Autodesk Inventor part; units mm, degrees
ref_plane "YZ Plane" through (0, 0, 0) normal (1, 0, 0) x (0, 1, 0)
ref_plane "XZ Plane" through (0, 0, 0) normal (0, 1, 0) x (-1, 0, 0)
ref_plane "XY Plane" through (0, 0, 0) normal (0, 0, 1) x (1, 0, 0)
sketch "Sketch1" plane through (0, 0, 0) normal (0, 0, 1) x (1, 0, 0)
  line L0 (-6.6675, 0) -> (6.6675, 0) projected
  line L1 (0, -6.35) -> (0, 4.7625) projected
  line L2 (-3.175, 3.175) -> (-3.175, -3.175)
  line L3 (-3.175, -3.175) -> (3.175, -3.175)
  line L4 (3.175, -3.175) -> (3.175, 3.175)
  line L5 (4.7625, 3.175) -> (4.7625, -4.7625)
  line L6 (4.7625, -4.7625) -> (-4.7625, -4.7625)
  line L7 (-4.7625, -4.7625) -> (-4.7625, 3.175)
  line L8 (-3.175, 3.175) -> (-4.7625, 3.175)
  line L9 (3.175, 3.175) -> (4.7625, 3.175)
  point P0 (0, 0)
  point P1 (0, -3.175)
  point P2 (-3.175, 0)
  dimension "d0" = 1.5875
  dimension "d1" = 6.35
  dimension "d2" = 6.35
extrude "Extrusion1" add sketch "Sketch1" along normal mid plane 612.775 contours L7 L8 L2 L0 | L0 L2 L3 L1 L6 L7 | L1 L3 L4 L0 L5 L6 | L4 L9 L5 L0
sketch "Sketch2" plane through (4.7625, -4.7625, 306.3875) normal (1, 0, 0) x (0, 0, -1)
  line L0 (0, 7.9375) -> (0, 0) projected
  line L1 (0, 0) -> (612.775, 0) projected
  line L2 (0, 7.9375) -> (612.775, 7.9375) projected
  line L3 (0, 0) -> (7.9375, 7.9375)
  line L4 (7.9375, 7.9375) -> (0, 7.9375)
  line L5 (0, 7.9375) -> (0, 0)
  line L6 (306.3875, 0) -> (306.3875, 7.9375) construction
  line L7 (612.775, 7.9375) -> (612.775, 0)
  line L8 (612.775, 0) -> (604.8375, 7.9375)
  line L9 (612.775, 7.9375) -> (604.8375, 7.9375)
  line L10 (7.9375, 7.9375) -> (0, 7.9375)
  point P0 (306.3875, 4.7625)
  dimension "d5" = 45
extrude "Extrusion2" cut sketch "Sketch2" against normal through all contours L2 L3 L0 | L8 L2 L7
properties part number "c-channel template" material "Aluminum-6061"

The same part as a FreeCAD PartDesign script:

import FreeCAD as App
import Part
import Sketcher
from FreeCAD import Vector
Q = App.Units.Quantity

doc = App.newDocument("Part")
body = doc.addObject("PartDesign::Body", "Body")

# Sketch on XY plane
sketch1 = body.newObject("Sketcher::SketchObject", "Sketch")
sketch1.AttachmentSupport = (doc.getObject("XY_Plane"), [""])
sketch1.MapMode = "FlatFace"
sketch1.addGeometry([
    Part.LineSegment(Vector(-4.7625, 3.175, 0), Vector(-4.7625, -4.7625, 0)),  # 0
    Part.LineSegment(Vector(-4.7625, -4.7625, 0), Vector(4.7625, -4.7625, 0)),  # 1
    Part.LineSegment(Vector(4.7625, -4.7625, 0), Vector(4.7625, 3.175, 0)),  # 2
    Part.LineSegment(Vector(4.7625, 3.175, 0), Vector(3.175, 3.175, 0)),  # 3
    Part.LineSegment(Vector(3.175, 3.175, 0), Vector(3.175, -3.175, 0)),  # 4
    Part.LineSegment(Vector(3.175, -3.175, 0), Vector(-3.175, -3.175, 0)),  # 5
    Part.LineSegment(Vector(-3.175, -3.175, 0), Vector(-3.175, 3.175, 0)),  # 6
    Part.LineSegment(Vector(-3.175, 3.175, 0), Vector(-4.7625, 3.175, 0)),  # 7
], False)
sketch1.addConstraint([
    Sketcher.Constraint("Coincident", 0, 2, 1, 1),
    Sketcher.Constraint("Coincident", 1, 2, 2, 1),
    Sketcher.Constraint("Coincident", 2, 2, 3, 1),
    Sketcher.Constraint("Coincident", 3, 2, 4, 1),
    Sketcher.Constraint("Coincident", 4, 2, 5, 1),
    Sketcher.Constraint("Coincident", 5, 2, 6, 1),
    Sketcher.Constraint("Coincident", 6, 2, 7, 1),
    Sketcher.Constraint("Coincident", 7, 2, 0, 1),
    Sketcher.Constraint("Vertical", 0),
    Sketcher.Constraint("Horizontal", 1),
    Sketcher.Constraint("Vertical", 2),
    Sketcher.Constraint("Horizontal", 3),
    Sketcher.Constraint("Vertical", 4),
    Sketcher.Constraint("Horizontal", 5),
    Sketcher.Constraint("Vertical", 6),
    Sketcher.Constraint("Horizontal", 7),
    Sketcher.Constraint("Symmetric", 3, 2, 5, 2, -1, 1),
    Sketcher.Constraint("Symmetric", 2, 2, 7, 2, -2),
    Sketcher.Constraint("Equal", 5, 4),
    Sketcher.Constraint("DistanceX", 5, 2, 5, 1, Q("0.25 in")),
    Sketcher.Constraint("DistanceX", 3, 2, 3, 1, Q("0.0625 in")),
    Sketcher.Constraint("DistanceY", 1, 2, 4, 2, Q("0.0625 in")),
])
pad1 = body.newObject("PartDesign::Pad", "Pad")
pad1.Profile = sketch1
pad1.Length = Q("24.125 in")
pad1.Midplane = True

# Sketch on YZ plane
sketch2 = body.newObject("Sketcher::SketchObject", "Sketch001")
sketch2.AttachmentSupport = (doc.getObject("YZ_Plane"), [""])
sketch2.MapMode = "FlatFace"
sketch2.AttachmentOffset = App.Placement(Vector(0, 0, 0.1875 * 25.4), App.Rotation())
sketch2.addGeometry([
    Part.LineSegment(Vector(3.175, 298.45, 0), Vector(3.175, 306.3875, 0)),  # 0
    Part.LineSegment(Vector(3.175, 306.3875, 0), Vector(-4.7625, 306.3875, 0)),  # 1
    Part.LineSegment(Vector(-4.7625, 306.3875, 0), Vector(3.175, 298.45, 0)),  # 2
    Part.LineSegment(Vector(3.175, -298.45, 0), Vector(-4.7625, -306.3875, 0)),  # 3
    Part.LineSegment(Vector(-4.7625, -306.3875, 0), Vector(3.175, -306.3875, 0)),  # 4
    Part.LineSegment(Vector(3.175, -306.3875, 0), Vector(3.175, -298.45, 0)),  # 5
], False)
sketch2.addConstraint([
    Sketcher.Constraint("Coincident", 0, 2, 1, 1),
    Sketcher.Constraint("Coincident", 1, 2, 2, 1),
    Sketcher.Constraint("Coincident", 2, 2, 0, 1),
    Sketcher.Constraint("Coincident", 3, 2, 4, 1),
    Sketcher.Constraint("Coincident", 4, 2, 5, 1),
    Sketcher.Constraint("Coincident", 5, 2, 3, 1),
    Sketcher.Constraint("Vertical", 0),
    Sketcher.Constraint("Horizontal", 1),
    Sketcher.Constraint("Horizontal", 4),
    Sketcher.Constraint("Vertical", 5),
    Sketcher.Constraint("Symmetric", 1, 2, 3, 2, -1),
    Sketcher.Constraint("Symmetric", 2, 2, 5, 2, -1),
    Sketcher.Constraint("Perpendicular", 2, 3),
    Sketcher.Constraint("DistanceY", 5, 2, 2, 2, Q("23.5 in")),
    Sketcher.Constraint("DistanceX", 1, 2, 1, 1, Q("0.3125 in")),
    Sketcher.Constraint("DistanceX", -1, 1, 0, 2, Q("0.125 in")),
])
pocket1 = body.newObject("PartDesign::Pocket", "Pocket")
pocket1.Profile = sketch2
pocket1.Type = "ThroughAll"

doc.recompute()
